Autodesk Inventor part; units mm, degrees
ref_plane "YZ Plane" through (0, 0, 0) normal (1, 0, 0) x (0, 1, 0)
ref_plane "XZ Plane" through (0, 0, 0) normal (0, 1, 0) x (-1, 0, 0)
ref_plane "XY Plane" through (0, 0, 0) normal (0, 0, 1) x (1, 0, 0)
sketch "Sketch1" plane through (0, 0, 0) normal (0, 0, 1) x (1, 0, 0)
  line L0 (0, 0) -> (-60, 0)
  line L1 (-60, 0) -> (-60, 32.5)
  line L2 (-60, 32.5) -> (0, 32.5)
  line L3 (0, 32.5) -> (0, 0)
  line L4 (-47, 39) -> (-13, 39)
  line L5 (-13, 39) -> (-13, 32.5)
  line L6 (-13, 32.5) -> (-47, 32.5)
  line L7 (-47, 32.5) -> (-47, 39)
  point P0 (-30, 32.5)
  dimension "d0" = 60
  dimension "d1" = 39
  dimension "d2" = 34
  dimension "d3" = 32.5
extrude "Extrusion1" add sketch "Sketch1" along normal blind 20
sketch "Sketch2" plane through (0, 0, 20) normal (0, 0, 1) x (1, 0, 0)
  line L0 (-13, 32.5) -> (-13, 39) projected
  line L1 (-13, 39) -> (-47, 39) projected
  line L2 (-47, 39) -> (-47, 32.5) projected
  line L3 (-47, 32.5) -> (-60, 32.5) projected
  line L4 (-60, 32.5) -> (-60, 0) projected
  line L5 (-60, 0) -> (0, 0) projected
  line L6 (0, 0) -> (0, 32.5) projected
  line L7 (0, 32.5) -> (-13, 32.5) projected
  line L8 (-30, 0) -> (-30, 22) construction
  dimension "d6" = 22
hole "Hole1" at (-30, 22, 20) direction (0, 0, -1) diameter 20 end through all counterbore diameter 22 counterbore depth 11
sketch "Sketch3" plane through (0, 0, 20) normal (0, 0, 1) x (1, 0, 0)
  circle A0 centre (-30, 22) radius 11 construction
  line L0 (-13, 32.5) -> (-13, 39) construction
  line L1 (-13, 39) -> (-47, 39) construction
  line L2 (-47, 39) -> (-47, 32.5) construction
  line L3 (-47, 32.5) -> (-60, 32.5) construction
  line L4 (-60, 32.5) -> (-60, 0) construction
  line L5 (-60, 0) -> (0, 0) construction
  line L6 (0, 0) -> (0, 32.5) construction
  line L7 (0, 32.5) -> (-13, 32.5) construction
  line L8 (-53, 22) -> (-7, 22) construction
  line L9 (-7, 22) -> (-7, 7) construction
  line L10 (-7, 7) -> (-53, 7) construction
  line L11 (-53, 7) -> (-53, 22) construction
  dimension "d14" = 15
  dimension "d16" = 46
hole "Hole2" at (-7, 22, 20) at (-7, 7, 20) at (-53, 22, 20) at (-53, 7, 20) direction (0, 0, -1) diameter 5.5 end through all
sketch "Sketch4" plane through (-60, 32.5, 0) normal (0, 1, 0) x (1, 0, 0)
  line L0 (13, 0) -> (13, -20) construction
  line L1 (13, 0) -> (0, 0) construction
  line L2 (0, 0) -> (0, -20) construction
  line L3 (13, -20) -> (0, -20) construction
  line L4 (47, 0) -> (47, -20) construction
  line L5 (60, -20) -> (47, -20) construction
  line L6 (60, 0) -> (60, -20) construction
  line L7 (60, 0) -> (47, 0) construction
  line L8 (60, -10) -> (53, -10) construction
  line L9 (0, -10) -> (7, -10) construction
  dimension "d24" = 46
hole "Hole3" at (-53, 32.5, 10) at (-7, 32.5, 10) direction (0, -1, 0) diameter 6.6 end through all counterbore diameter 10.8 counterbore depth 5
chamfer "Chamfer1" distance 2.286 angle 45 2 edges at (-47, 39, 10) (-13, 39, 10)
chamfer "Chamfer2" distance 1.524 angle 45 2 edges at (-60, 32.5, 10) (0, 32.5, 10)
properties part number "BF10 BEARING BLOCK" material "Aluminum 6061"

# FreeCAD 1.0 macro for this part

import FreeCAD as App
import Part
import Sketcher


def edges_at(feature, points):
    """Names of the edges that pass closest to the given points."""
    edges = feature.Shape.Edges
    near = lambda p: min(range(len(edges)), key=lambda i: edges[i].distToShape(Part.Vertex(*p))[0])
    return sorted({f"Edge{near(p) + 1}" for p in points})


def add_polygon(sketch, points):
    """Adds a closed chain of lines whose ends are joined by coincident constraints."""
    first, n = sketch.GeometryCount, len(points)
    for a, b in zip(points, points[1:] + points[:1]):
        sketch.addGeometry(Part.LineSegment(App.Vector(*a, 0), App.Vector(*b, 0)), False)
    for i in range(n):
        sketch.addConstraint(Sketcher.Constraint("Coincident", first + i, 2, first + (i + 1) % n, 1))

doc = App.newDocument("Part")
params = doc.addObject("Spreadsheet::Sheet", "Params")
for row, (alias, value) in enumerate([
    ("sketch1_width", "60 mm"),
    ("sketch1_width2", "34 mm"),
    ("sketch1_height", "32.5 mm"),
    ("pad1_length", "20 mm"),
    ("sketch2_diameter", "20 mm"),
    ("hole_diameter", "20 mm"),
    ("hole_cbore_diameter", "22 mm"),
    ("hole_cbore_depth", "11 mm"),
    ("sketch3_diameter", "5.5 mm"),
    ("hole2_diameter", "5.5 mm"),
    ("sketch4_diameter", "6.6 mm"),
    ("hole3_diameter", "6.6 mm"),
    ("hole3_cbore_diameter", "10.8 mm"),
    ("hole3_cbore_depth", "5 mm"),
    ("chamfer_size", "2.286 mm"),
    ("chamfer2_size", "1.524 mm"),
], start=1):
    params.set(f"A{row}", alias)
    params.set(f"B{row}", "=" + value)
    params.setAlias(f"B{row}", alias)

body = doc.addObject("PartDesign::Body", "Body")

sketch1 = body.newObject("Sketcher::SketchObject", "Sketch")
sketch1.AttachmentSupport = (doc.getObject("XY_Plane"), [""])
sketch1.MapMode = "FlatFace"
add_polygon(sketch1, [(-60, 0), (0, 0), (0, 32), (-13, 32), (-13, 39), (-47, 39), (-47, 32), (-60, 32)])
sketch1.addConstraint([
    Sketcher.Constraint("Horizontal", 0),
    Sketcher.Constraint("Vertical", 1),
    Sketcher.Constraint("Horizontal", 2),
    Sketcher.Constraint("Vertical", 3),
    Sketcher.Constraint("Horizontal", 4),
    Sketcher.Constraint("Vertical", 5),
    Sketcher.Constraint("Horizontal", 6),
    Sketcher.Constraint("Vertical", 7),
    Sketcher.Constraint("Coincident", 0, 2, -1, 1),
    Sketcher.Constraint("Horizontal", 2, 2, 5, 2),
    Sketcher.Constraint("Equal", 2, 6),
    Sketcher.Constraint("DistanceX", 0, 1, 0, 2, 60.0),
    Sketcher.Constraint("DistanceX", 4, 2, 4, 1, 34.0),
    Sketcher.Constraint("DistanceY", 1, 1, 1, 2, 32.5),
    Sketcher.Constraint("DistanceY", -1, 1, 3, 2, 39.0),
])
sketch1.setExpression("Constraints[19]", "Params.sketch1_width")
sketch1.setExpression("Constraints[20]", "Params.sketch1_width2")
sketch1.setExpression("Constraints[21]", "Params.sketch1_height")
pad1 = body.newObject("PartDesign::Pad", "Pad")
pad1.Profile = sketch1
pad1.setExpression("Length", "Params.pad1_length")

sketch2 = body.newObject("Sketcher::SketchObject", "Sketch001")
sketch2.AttachmentSupport = (doc.getObject("XY_Plane"), [""])
sketch2.MapMode = "FlatFace"
sketch2.AttachmentOffset = App.Placement(App.Vector(0, 0, 20), App.Rotation())
sketch2.addGeometry(Part.Circle(App.Vector(-30, 22, 0), App.Vector(0, 0, 1), 10), False)
sketch2.addConstraint([
    Sketcher.Constraint("Diameter", 0, 20.0),
    Sketcher.Constraint("DistanceX", 0, 3, -1, 1, 30.0),
    Sketcher.Constraint("DistanceY", -1, 1, 0, 3, 22.0),
])
sketch2.setExpression("Constraints[0]", "Params.sketch2_diameter")
doc.recompute()
hole = body.newObject("PartDesign::Hole", "Hole")
hole.Profile = sketch2
hole.ThreadType = "None"
hole.setExpression("Diameter", "Params.hole_diameter")
hole.DepthType = "ThroughAll"
hole.HoleCutType = "Counterbore"
hole.setExpression("HoleCutDiameter", "Params.hole_cbore_diameter")
hole.setExpression("HoleCutDepth", "Params.hole_cbore_depth")

sketch3 = body.newObject("Sketcher::SketchObject", "Sketch002")
sketch3.AttachmentSupport = (doc.getObject("XY_Plane"), [""])
sketch3.MapMode = "FlatFace"
sketch3.AttachmentOffset = App.Placement(App.Vector(0, 0, 20), App.Rotation())
sketch3.addGeometry([
    Part.Circle(App.Vector(-7, 22, 0), App.Vector(0, 0, 1), 2.8),
    Part.Circle(App.Vector(-7, 7, 0), App.Vector(0, 0, 1), 2.8),
    Part.Circle(App.Vector(-53, 22, 0), App.Vector(0, 0, 1), 2.8),
    Part.Circle(App.Vector(-53, 7, 0), App.Vector(0, 0, 1), 2.8),
], False)
sketch3.addConstraint([
    Sketcher.Constraint("Equal", 0, 1),
    Sketcher.Constraint("Equal", 1, 2),
    Sketcher.Constraint("Equal", 2, 3),
    Sketcher.Constraint("Horizontal", 0, 3, 2, 3),
    Sketcher.Constraint("Horizontal", 1, 3, 3, 3),
    Sketcher.Constraint("Vertical", 0, 3, 1, 3),
    Sketcher.Constraint("Vertical", 2, 3, 3, 3),
    Sketcher.Constraint("Diameter", 0, 5.5),
    Sketcher.Constraint("DistanceX", 0, 3, -1, 1, 7.0),
    Sketcher.Constraint("DistanceY", -1, 1, 0, 3, 22.0),
    Sketcher.Constraint("DistanceY", -1, 1, 1, 3, 7.0),
    Sketcher.Constraint("DistanceX", 2, 3, -1, 1, 53.0),
])
sketch3.setExpression("Constraints[7]", "Params.sketch3_diameter")
doc.recompute()
hole2 = body.newObject("PartDesign::Hole", "Hole001")
hole2.Profile = sketch3
hole2.ThreadType = "None"
hole2.setExpression("Diameter", "Params.hole2_diameter")
hole2.DepthType = "ThroughAll"

sketch4 = body.newObject("Sketcher::SketchObject", "Sketch003")
sketch4.AttachmentSupport = (doc.getObject("XZ_Plane"), [""])
sketch4.MapMode = "FlatFace"
sketch4.AttachmentOffset = App.Placement(App.Vector(0, 0, -32.5), App.Rotation())
sketch4.addGeometry([
    Part.Circle(App.Vector(-53, 10, 0), App.Vector(0, 0, 1), 3.3),
    Part.Circle(App.Vector(-7, 10, 0), App.Vector(0, 0, 1), 3.3),
], False)
sketch4.addConstraint([
    Sketcher.Constraint("Equal", 0, 1),
    Sketcher.Constraint("Horizontal", 0, 3, 1, 3),
    Sketcher.Constraint("Diameter", 0, 6.6),
    Sketcher.Constraint("DistanceX", 0, 3, -1, 1, 53.0),
    Sketcher.Constraint("DistanceY", -1, 1, 0, 3, 10.0),
    Sketcher.Constraint("DistanceX", 1, 3, -1, 1, 7.0),
])
sketch4.setExpression("Constraints[2]", "Params.sketch4_diameter")
doc.recompute()
hole3 = body.newObject("PartDesign::Hole", "Hole002")
hole3.Profile = sketch4
hole3.ThreadType = "None"
hole3.setExpression("Diameter", "Params.hole3_diameter")
hole3.DepthType = "ThroughAll"
hole3.HoleCutType = "Counterbore"
hole3.setExpression("HoleCutDiameter", "Params.hole3_cbore_diameter")
hole3.setExpression("HoleCutDepth", "Params.hole3_cbore_depth")
hole3.Reversed = True
doc.recompute()

chamfer = body.newObject("PartDesign::Chamfer", "Chamfer")
chamfer.Base = (hole3, edges_at(hole3, [(-47, 39, 10), (-13, 39, 10)]))
chamfer.setExpression("Size", "Params.chamfer_size")
doc.recompute()

chamfer2 = body.newObject("PartDesign::Chamfer", "Chamfer001")
chamfer2.Base = (chamfer, edges_at(chamfer, [(-60, 32.5, 10), (0, 32.5, 10)]))
chamfer2.setExpression("Size", "Params.chamfer2_size")

doc.recompute()
